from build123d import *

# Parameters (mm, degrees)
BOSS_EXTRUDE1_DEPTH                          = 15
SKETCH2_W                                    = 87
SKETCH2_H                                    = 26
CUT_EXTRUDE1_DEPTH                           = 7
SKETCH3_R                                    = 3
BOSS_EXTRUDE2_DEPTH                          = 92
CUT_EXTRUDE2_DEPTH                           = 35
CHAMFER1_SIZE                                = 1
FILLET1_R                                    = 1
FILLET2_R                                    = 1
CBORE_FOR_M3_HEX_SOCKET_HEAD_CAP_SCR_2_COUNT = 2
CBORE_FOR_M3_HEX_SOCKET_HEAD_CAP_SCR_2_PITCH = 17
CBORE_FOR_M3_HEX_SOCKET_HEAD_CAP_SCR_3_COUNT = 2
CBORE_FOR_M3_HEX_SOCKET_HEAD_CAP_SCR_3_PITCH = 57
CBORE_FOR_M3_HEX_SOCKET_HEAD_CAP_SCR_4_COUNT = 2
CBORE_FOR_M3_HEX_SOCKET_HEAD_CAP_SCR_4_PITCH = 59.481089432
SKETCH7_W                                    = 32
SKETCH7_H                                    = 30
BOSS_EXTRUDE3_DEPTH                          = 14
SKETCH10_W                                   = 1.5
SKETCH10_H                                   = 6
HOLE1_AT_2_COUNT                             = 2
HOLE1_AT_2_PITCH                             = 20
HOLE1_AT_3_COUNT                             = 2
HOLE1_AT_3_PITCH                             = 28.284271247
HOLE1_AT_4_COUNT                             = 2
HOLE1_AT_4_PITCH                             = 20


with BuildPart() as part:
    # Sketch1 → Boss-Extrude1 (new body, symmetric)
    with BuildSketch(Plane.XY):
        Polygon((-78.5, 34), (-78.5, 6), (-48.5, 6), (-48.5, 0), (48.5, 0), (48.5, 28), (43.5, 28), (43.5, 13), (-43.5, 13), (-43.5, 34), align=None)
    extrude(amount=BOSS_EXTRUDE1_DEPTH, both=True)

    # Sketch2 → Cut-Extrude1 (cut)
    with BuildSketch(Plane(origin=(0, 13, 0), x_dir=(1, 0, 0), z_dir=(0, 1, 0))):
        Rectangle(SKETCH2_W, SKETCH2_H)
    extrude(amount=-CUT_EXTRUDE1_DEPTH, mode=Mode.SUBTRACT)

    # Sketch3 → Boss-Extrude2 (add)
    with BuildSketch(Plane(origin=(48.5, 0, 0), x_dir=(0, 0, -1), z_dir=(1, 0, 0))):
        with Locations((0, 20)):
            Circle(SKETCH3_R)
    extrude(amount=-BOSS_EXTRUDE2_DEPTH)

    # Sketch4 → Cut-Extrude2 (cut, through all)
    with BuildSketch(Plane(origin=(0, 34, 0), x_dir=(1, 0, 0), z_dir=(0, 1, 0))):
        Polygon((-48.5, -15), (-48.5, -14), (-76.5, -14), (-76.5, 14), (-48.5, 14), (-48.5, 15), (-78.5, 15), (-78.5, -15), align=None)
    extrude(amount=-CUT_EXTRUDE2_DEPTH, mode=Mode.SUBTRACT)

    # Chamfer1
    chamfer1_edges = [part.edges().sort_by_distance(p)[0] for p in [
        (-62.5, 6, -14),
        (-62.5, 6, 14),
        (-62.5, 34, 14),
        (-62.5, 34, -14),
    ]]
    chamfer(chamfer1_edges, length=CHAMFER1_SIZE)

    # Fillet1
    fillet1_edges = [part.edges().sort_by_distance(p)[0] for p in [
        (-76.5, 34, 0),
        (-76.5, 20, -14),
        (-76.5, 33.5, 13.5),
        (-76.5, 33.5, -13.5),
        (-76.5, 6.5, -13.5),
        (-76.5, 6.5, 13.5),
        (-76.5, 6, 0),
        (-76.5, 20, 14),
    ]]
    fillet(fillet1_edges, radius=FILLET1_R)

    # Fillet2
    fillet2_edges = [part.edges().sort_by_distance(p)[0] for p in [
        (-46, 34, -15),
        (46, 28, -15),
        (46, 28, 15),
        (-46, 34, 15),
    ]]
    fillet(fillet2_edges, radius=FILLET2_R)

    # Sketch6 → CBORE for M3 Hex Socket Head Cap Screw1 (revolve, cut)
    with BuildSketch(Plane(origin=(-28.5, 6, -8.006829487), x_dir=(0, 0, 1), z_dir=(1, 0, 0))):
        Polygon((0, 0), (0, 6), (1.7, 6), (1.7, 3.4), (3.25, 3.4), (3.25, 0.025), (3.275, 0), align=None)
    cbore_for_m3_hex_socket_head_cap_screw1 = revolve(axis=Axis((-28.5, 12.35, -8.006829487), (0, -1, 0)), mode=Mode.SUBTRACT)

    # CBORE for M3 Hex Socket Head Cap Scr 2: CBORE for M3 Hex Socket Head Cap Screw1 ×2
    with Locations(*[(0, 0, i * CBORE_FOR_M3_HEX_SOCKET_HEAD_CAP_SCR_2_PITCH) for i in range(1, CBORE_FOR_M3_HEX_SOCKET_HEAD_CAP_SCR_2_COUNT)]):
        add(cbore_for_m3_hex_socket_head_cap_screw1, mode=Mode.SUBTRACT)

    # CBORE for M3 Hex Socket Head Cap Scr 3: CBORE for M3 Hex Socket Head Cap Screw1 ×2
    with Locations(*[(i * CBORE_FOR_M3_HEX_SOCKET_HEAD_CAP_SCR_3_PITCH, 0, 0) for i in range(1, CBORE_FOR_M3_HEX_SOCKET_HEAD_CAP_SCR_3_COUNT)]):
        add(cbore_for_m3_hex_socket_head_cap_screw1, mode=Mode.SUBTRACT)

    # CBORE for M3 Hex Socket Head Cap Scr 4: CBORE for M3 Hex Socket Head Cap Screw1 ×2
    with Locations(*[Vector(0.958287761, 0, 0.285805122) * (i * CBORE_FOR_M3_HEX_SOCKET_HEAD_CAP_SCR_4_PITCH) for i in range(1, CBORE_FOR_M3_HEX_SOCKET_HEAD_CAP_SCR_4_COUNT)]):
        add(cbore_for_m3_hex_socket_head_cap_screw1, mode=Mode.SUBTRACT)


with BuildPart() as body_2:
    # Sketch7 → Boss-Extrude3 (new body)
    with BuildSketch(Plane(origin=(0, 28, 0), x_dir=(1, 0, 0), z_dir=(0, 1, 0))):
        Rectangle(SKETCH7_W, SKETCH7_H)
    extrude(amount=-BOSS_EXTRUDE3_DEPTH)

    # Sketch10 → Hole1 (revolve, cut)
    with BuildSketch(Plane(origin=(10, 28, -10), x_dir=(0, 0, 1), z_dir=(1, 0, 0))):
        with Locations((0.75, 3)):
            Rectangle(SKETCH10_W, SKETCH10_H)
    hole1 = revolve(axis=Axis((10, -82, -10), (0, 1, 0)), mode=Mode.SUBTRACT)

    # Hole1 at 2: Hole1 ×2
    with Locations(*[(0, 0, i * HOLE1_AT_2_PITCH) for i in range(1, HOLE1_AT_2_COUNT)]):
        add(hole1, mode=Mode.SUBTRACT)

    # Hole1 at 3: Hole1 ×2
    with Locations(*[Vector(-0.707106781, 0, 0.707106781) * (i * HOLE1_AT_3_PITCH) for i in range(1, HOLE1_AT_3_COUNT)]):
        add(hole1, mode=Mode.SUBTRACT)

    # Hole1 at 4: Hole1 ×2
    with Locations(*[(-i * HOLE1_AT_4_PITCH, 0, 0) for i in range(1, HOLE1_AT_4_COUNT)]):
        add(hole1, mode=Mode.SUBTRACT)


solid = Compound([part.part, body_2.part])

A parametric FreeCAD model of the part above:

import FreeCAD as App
import Part
import Sketcher
from FreeCAD import Vector
Q = App.Units.Quantity


def edges_at(feature, points):
    """Names of the edges that pass closest to the given points."""
    edges = feature.Shape.Edges
    near = lambda p: min(range(len(edges)), key=lambda i: edges[i].distToShape(Part.Vertex(*p))[0])
    return sorted({f"Edge{near(p) + 1}" for p in points})

doc = App.newDocument("Part")
body = doc.addObject("PartDesign::Body", "Body")

# Sketch on XY plane
sketch1 = body.newObject("Sketcher::SketchObject", "Sketch")
sketch1.AttachmentSupport = (doc.getObject("XY_Plane"), [""])
sketch1.MapMode = "FlatFace"
sketch1.addGeometry(Part.LineSegment(Vector(-78, 34, 0), Vector(-78, 6, 0)), False)
sketch1.addGeometry(Part.LineSegment(Vector(-78, 6, 0), Vector(-48, 6, 0)), False)
sketch1.addGeometry(Part.LineSegment(Vector(-48, 6, 0), Vector(-48, 0, 0)), False)
sketch1.addGeometry(Part.LineSegment(Vector(-48, 0, 0), Vector(48, 0, 0)), False)
sketch1.addGeometry(Part.LineSegment(Vector(48, 0, 0), Vector(48, 28, 0)), False)
sketch1.addGeometry(Part.LineSegment(Vector(48, 28, 0), Vector(44, 28, 0)), False)
sketch1.addGeometry(Part.LineSegment(Vector(44, 28, 0), Vector(44, 13, 0)), False)
sketch1.addGeometry(Part.LineSegment(Vector(44, 13, 0), Vector(-44, 13, 0)), False)
sketch1.addGeometry(Part.LineSegment(Vector(-44, 13, 0), Vector(-44, 34, 0)), False)
sketch1.addGeometry(Part.LineSegment(Vector(-44, 34, 0), Vector(-78, 34, 0)), False)
sketch1.addConstraint(Sketcher.Constraint("Coincident", 0, 2, 1, 1))
sketch1.addConstraint(Sketcher.Constraint("Coincident", 1, 2, 2, 1))
sketch1.addConstraint(Sketcher.Constraint("Coincident", 2, 2, 3, 1))
sketch1.addConstraint(Sketcher.Constraint("Coincident", 3, 2, 4, 1))
sketch1.addConstraint(Sketcher.Constraint("Coincident", 4, 2, 5, 1))
sketch1.addConstraint(Sketcher.Constraint("Coincident", 5, 2, 6, 1))
sketch1.addConstraint(Sketcher.Constraint("Coincident", 6, 2, 7, 1))
sketch1.addConstraint(Sketcher.Constraint("Coincident", 7, 2, 8, 1))
sketch1.addConstraint(Sketcher.Constraint("Coincident", 8, 2, 9, 1))
sketch1.addConstraint(Sketcher.Constraint("Coincident", 9, 2, 0, 1))
sketch1.addConstraint(Sketcher.Constraint("Vertical", 0))
sketch1.addConstraint(Sketcher.Constraint("Horizontal", 1))
sketch1.addConstraint(Sketcher.Constraint("Vertical", 2))
sketch1.addConstraint(Sketcher.Constraint("Horizontal", 3))
sketch1.addConstraint(Sketcher.Constraint("Vertical", 4))
sketch1.addConstraint(Sketcher.Constraint("Horizontal", 5))
sketch1.addConstraint(Sketcher.Constraint("Vertical", 6))
sketch1.addConstraint(Sketcher.Constraint("Horizontal", 7))
sketch1.addConstraint(Sketcher.Constraint("Vertical", 8))
sketch1.addConstraint(Sketcher.Constraint("Horizontal", 9))
sketch1.addConstraint(Sketcher.Constraint("Symmetric", 2, 2, 3, 2, -1, 1))
sketch1.addConstraint(Sketcher.Constraint("Equal", 0, 4))
sketch1.addConstraint(Sketcher.Constraint("DistanceX", 1, 1, 1, 2, 30.0))
sketch1.addConstraint(Sketcher.Constraint("DistanceX", 3, 1, 3, 2, 97.0))
sketch1.addConstraint(Sketcher.Constraint("DistanceX", 5, 2, 5, 1, 5.0))
sketch1.addConstraint(Sketcher.Constraint("DistanceX", 7, 2, 7, 1, 87.0))
sketch1.addConstraint(Sketcher.Constraint("DistanceY", 0, 2, 0, 1, 28.0))
sketch1.addConstraint(Sketcher.Constraint("DistanceY", 2, 2, 2, 1, 6.0))
sketch1.addConstraint(Sketcher.Constraint("DistanceY", 6, 2, 6, 1, 15.0))
pad1 = body.newObject("PartDesign::Pad", "Pad")
pad1.Profile = sketch1
pad1.Length = 30
pad1.Midplane = True

# Sketch on XZ plane
sketch2 = body.newObject("Sketcher::SketchObject", "Sketch001")
sketch2.AttachmentSupport = (doc.getObject("XZ_Plane"), [""])
sketch2.MapMode = "FlatFace"
sketch2.AttachmentOffset = App.Placement(Vector(0, 0, -13), App.Rotation())
sketch2.addGeometry(Part.LineSegment(Vector(-44, -13, 0), Vector(-44, 13, 0)), False)
sketch2.addGeometry(Part.LineSegment(Vector(-44, 13, 0), Vector(44, 13, 0)), False)
sketch2.addGeometry(Part.LineSegment(Vector(44, 13, 0), Vector(44, -13, 0)), False)
sketch2.addGeometry(Part.LineSegment(Vector(44, -13, 0), Vector(-44, -13, 0)), False)
sketch2.addConstraint(Sketcher.Constraint("Coincident", 0, 2, 1, 1))
sketch2.addConstraint(Sketcher.Constraint("Coincident", 1, 2, 2, 1))
sketch2.addConstraint(Sketcher.Constraint("Coincident", 2, 2, 3, 1))
sketch2.addConstraint(Sketcher.Constraint("Coincident", 3, 2, 0, 1))
sketch2.addConstraint(Sketcher.Constraint("Vertical", 0))
sketch2.addConstraint(Sketcher.Constraint("Horizontal", 1))
sketch2.addConstraint(Sketcher.Constraint("Vertical", 2))
sketch2.addConstraint(Sketcher.Constraint("Horizontal", 3))
sketch2.addConstraint(Sketcher.Constraint("Symmetric", 0, 2, 2, 2, -1, 1))
sketch2.addConstraint(Sketcher.Constraint("DistanceX", 1, 1, 1, 2, 87.0))
sketch2.addConstraint(Sketcher.Constraint("DistanceY", 0, 1, 0, 2, 26.0))
pocket1 = body.newObject("PartDesign::Pocket", "Pocket")
pocket1.Profile = sketch2
pocket1.Length = 7
pocket1.Reversed = True

# Sketch on YZ plane
sketch3 = body.newObject("Sketcher::SketchObject", "Sketch002")
sketch3.AttachmentSupport = (doc.getObject("YZ_Plane"), [""])
sketch3.MapMode = "FlatFace"
sketch3.AttachmentOffset = App.Placement(Vector(0, 0, 48.5), App.Rotation())
sketch3.addGeometry(Part.Circle(Vector(20, 0, 0), Vector(0, 0, 1), 3), False)
sketch3.addConstraint(Sketcher.Constraint("PointOnObject", 0, 3, -1))
sketch3.addConstraint(Sketcher.Constraint("Diameter", 0, 6.0))
sketch3.addConstraint(Sketcher.Constraint("DistanceX", -1, 1, 0, 3, 20.0))
pad2 = body.newObject("PartDesign::Pad", "Pad001")
pad2.Profile = sketch3
pad2.Length = 92
pad2.Reversed = True

# Sketch on XZ plane
sketch4 = body.newObject("Sketcher::SketchObject", "Sketch003")
sketch4.AttachmentSupport = (doc.getObject("XZ_Plane"), [""])
sketch4.MapMode = "FlatFace"
sketch4.AttachmentOffset = App.Placement(Vector(0, 0, -34), App.Rotation())
sketch4.addGeometry(Part.LineSegment(Vector(-48.5, 15, 0), Vector(-48.5, 14, 0)), False)
sketch4.addGeometry(Part.LineSegment(Vector(-48.5, 14, 0), Vector(-76.5, 14, 0)), False)
sketch4.addGeometry(Part.LineSegment(Vector(-76.5, 14, 0), Vector(-76.5, -14, 0)), False)
sketch4.addGeometry(Part.LineSegment(Vector(-76.5, -14, 0), Vector(-48.5, -14, 0)), False)
sketch4.addGeometry(Part.LineSegment(Vector(-48.5, -14, 0), Vector(-48.5, -15, 0)), False)
sketch4.addGeometry(Part.LineSegment(Vector(-48.5, -15, 0), Vector(-78.5, -15, 0)), False)
sketch4.addGeometry(Part.LineSegment(Vector(-78.5, -15, 0), Vector(-78.5, 15, 0)), False)
sketch4.addGeometry(Part.LineSegment(Vector(-78.5, 15, 0), Vector(-48.5, 15, 0)), False)
sketch4.addConstraint(Sketcher.Constraint("Coincident", 0, 2, 1, 1))
sketch4.addConstraint(Sketcher.Constraint("Coincident", 1, 2, 2, 1))
sketch4.addConstraint(Sketcher.Constraint("Coincident", 2, 2, 3, 1))
sketch4.addConstraint(Sketcher.Constraint("Coincident", 3, 2, 4, 1))
sketch4.addConstraint(Sketcher.Constraint("Coincident", 4, 2, 5, 1))
sketch4.addConstraint(Sketcher.Constraint("Coincident", 5, 2, 6, 1))
sketch4.addConstraint(Sketcher.Constraint("Coincident", 6, 2, 7, 1))
sketch4.addConstraint(Sketcher.Constraint("Coincident", 7, 2, 0, 1))
sketch4.addConstraint(Sketcher.Constraint("Vertical", 0))
sketch4.addConstraint(Sketcher.Constraint("Horizontal", 1))
sketch4.addConstraint(Sketcher.Constraint("Vertical", 2))
sketch4.addConstraint(Sketcher.Constraint("Horizontal", 3))
sketch4.addConstraint(Sketcher.Constraint("Vertical", 4))
sketch4.addConstraint(Sketcher.Constraint("Horizontal", 5))
sketch4.addConstraint(Sketcher.Constraint("Vertical", 6))
sketch4.addConstraint(Sketcher.Constraint("Horizontal", 7))
sketch4.addConstraint(Sketcher.Constraint("Symmetric", 0, 2, 3, 2, -1))
sketch4.addConstraint(Sketcher.Constraint("Equal", 3, 2))
sketch4.addConstraint(Sketcher.Constraint("Equal", 0, 4))
sketch4.addConstraint(Sketcher.Constraint("Equal", 7, 6))
sketch4.addConstraint(Sketcher.Constraint("DistanceX", 1, 2, 1, 1, 28.0))
sketch4.addConstraint(Sketcher.Constraint("DistanceX", 5, 2, 5, 1, 30.0))
sketch4.addConstraint(Sketcher.Constraint("DistanceX", 0, 2, -1, 1, 48.5))
pocket2 = body.newObject("PartDesign::Pocket", "Pocket001")
pocket2.Profile = sketch4
pocket2.Type = "ThroughAll"
pocket2.Reversed = True
doc.recompute()

chamfer = body.newObject("PartDesign::Chamfer", "Chamfer")
chamfer.Base = (pocket2, edges_at(pocket2, [
    (-62.5, 6, -14),
    (-62.5, 6, 14),
    (-62.5, 34, 14),
    (-62.5, 34, -14),
]))
chamfer.Size = 1
doc.recompute()

fillet = body.newObject("PartDesign::Fillet", "Fillet")
fillet.Base = (chamfer, edges_at(chamfer, [
    (-76.5, 34, 0),
    (-76.5, 20, -14),
    (-76.5, 33.5, 13.5),
    (-76.5, 33.5, -13.5),
    (-76.5, 6.5, -13.5),
    (-76.5, 6.5, 13.5),
    (-76.5, 6, 0),
    (-76.5, 20, 14),
]))
fillet.Radius = 1
doc.recompute()

fillet2 = body.newObject("PartDesign::Fillet", "Fillet001")
fillet2.Base = (fillet, edges_at(fillet, [
    (-46, 34, -15),
    (46, 28, -15),
    (46, 28, 15),
    (-46, 34, 15),
]))
fillet2.Radius = 1

# Sketch on YZ plane
sketch5 = body.newObject("Sketcher::SketchObject", "Sketch004")
sketch5.AttachmentSupport = (doc.getObject("YZ_Plane"), [""])
sketch5.MapMode = "FlatFace"
sketch5.AttachmentOffset = App.Placement(Vector(0, 0, -28.5), App.Rotation())
sketch5.addGeometry(Part.LineSegment(Vector(0, -8.007, 0), Vector(6, -8.007, 0)), False)
sketch5.addGeometry(Part.LineSegment(Vector(6, -8.007, 0), Vector(6, -4.732, 0)), False)
sketch5.addGeometry(Part.LineSegment(Vector(6, -4.732, 0), Vector(5.975, -4.757, 0)), False)
sketch5.addGeometry(Part.LineSegment(Vector(5.975, -4.757, 0), Vector(2.6, -4.757, 0)), False)
sketch5.addGeometry(Part.LineSegment(Vector(2.6, -4.757, 0), Vector(2.6, -6.307, 0)), False)
sketch5.addGeometry(Part.LineSegment(Vector(2.6, -6.307, 0), Vector(0, -6.307, 0)), False)
sketch5.addGeometry(Part.LineSegment(Vector(0, -6.307, 0), Vector(0, -8.007, 0)), False)
sketch5.addGeometry(Part.LineSegment(Vector(6, -8.007, 0), Vector(0, -8.007, 0)), True)  # axis
sketch5.addConstraint(Sketcher.Constraint("Coincident", 0, 2, 1, 1))
sketch5.addConstraint(Sketcher.Constraint("Coincident", 1, 2, 2, 1))
sketch5.addConstraint(Sketcher.Constraint("Coincident", 2, 2, 3, 1))
sketch5.addConstraint(Sketcher.Constraint("Coincident", 3, 2, 4, 1))
sketch5.addConstraint(Sketcher.Constraint("Coincident", 4, 2, 5, 1))
sketch5.addConstraint(Sketcher.Constraint("Coincident", 5, 2, 6, 1))
sketch5.addConstraint(Sketcher.Constraint("Coincident", 6, 2, 0, 1))
sketch5.addConstraint(Sketcher.Constraint("Horizontal", 0))
sketch5.addConstraint(Sketcher.Constraint("Vertical", 1))
sketch5.addConstraint(Sketcher.Constraint("Horizontal", 3))
sketch5.addConstraint(Sketcher.Constraint("Vertical", 4))
sketch5.addConstraint(Sketcher.Constraint("Horizontal", 5))
sketch5.addConstraint(Sketcher.Constraint("Vertical", 6))
sketch5.addConstraint(Sketcher.Constraint("Horizontal", 7))
sketch5.addConstraint(Sketcher.Constraint("Coincident", 7, 1, 0, 2))
sketch5.addConstraint(Sketcher.Constraint("PointOnObject", 5, 2, -2))
sketch5.addConstraint(Sketcher.Constraint("PointOnObject", 7, 2, -2))
sketch5.addConstraint(Sketcher.Constraint("DistanceX", 0, 1, 0, 2, 6.0))
sketch5.addConstraint(Sketcher.Constraint("Angle", 2, Q("-135 deg")))
sketch5.addConstraint(Sketcher.Constraint("DistanceX", 5, 2, 5, 1, 2.6))
sketch5.addConstraint(Sketcher.Constraint("DistanceY", 6, 2, 6, 1, 1.7))
sketch5.addConstraint(Sketcher.Constraint("DistanceY", 4, 2, 4, 1, 1.55))
sketch5.addConstraint(Sketcher.Constraint("DistanceX", 3, 2, 3, 1, 3.375))
sketch5.addConstraint(Sketcher.Constraint("DistanceY", 0, 2, -1, 1, 8.006829))
groove = body.newObject("PartDesign::Groove", "Groove")
groove.Profile = sketch5
groove.ReferenceAxis = (sketch5, ["Axis0"])
groove.Angle = 360
doc.recompute()

linearpattern = body.newObject("PartDesign::LinearPattern", "LinearPattern")
linearpattern.Originals = [groove]
linearpattern.Direction = (doc.getObject("Z_Axis"), [""])
linearpattern.Mode = "offset"
linearpattern.Offset = 17
linearpattern.Occurrences = 2
body.Tip = linearpattern
doc.recompute()

linearpattern2 = body.newObject("PartDesign::LinearPattern", "LinearPattern001")
linearpattern2.Originals = [groove]
linearpattern2.Direction = (doc.getObject("X_Axis"), [""])
linearpattern2.Mode = "offset"
linearpattern2.Offset = 57
linearpattern2.Occurrences = 2
body.Tip = linearpattern2
doc.recompute()

datumline = body.newObject("PartDesign::Line", "DatumLine")
datumline.Placement = App.Placement(Vector(0, 0, 0), App.Rotation(Vector(0, 0, 1), Vector(0.958287761, 0, 0.285805122)))
linearpattern3 = body.newObject("PartDesign::LinearPattern", "LinearPattern002")
linearpattern3.Originals = [groove]
linearpattern3.Direction = (datumline, [""])
linearpattern3.Mode = "offset"
linearpattern3.Offset = 59.481089
linearpattern3.Occurrences = 2
body.Tip = linearpattern3
body2 = doc.addObject("PartDesign::Body", "Body001")

# Sketch on XZ plane
sketch6 = body2.newObject("Sketcher::SketchObject", "Sketch005")
sketch6.AttachmentSupport = (doc.getObject("XZ_Plane001"), [""])
sketch6.MapMode = "FlatFace"
sketch6.AttachmentOffset = App.Placement(Vector(0, 0, -28), App.Rotation())
sketch6.addGeometry(Part.LineSegment(Vector(-16, -15, 0), Vector(-16, 15, 0)), False)
sketch6.addGeometry(Part.LineSegment(Vector(-16, 15, 0), Vector(16, 15, 0)), False)
sketch6.addGeometry(Part.LineSegment(Vector(16, 15, 0), Vector(16, -15, 0)), False)
sketch6.addGeometry(Part.LineSegment(Vector(16, -15, 0), Vector(-16, -15, 0)), False)
sketch6.addConstraint(Sketcher.Constraint("Coincident", 0, 2, 1, 1))
sketch6.addConstraint(Sketcher.Constraint("Coincident", 1, 2, 2, 1))
sketch6.addConstraint(Sketcher.Constraint("Coincident", 2, 2, 3, 1))
sketch6.addConstraint(Sketcher.Constraint("Coincident", 3, 2, 0, 1))
sketch6.addConstraint(Sketcher.Constraint("Vertical", 0))
sketch6.addConstraint(Sketcher.Constraint("Horizontal", 1))
sketch6.addConstraint(Sketcher.Constraint("Vertical", 2))
sketch6.addConstraint(Sketcher.Constraint("Horizontal", 3))
sketch6.addConstraint(Sketcher.Constraint("Symmetric", 0, 2, 2, 2, -1, 1))
sketch6.addConstraint(Sketcher.Constraint("DistanceX", 1, 1, 1, 2, 32.0))
sketch6.addConstraint(Sketcher.Constraint("DistanceY", 0, 1, 0, 2, 30.0))
pad3 = body2.newObject("PartDesign::Pad", "Pad002")
pad3.Profile = sketch6
pad3.Length = 14

# Sketch on YZ plane
sketch7 = body2.newObject("Sketcher::SketchObject", "Sketch006")
sketch7.AttachmentSupport = (doc.getObject("YZ_Plane001"), [""])
sketch7.MapMode = "FlatFace"
sketch7.AttachmentOffset = App.Placement(Vector(0, 0, 10), App.Rotation())
sketch7.addGeometry(Part.LineSegment(Vector(22, -10, 0), Vector(28, -10, 0)), False)
sketch7.addGeometry(Part.LineSegment(Vector(28, -10, 0), Vector(28, -8.5, 0)), False)
sketch7.addGeometry(Part.LineSegment(Vector(28, -8.5, 0), Vector(22, -8.5, 0)), False)
sketch7.addGeometry(Part.LineSegment(Vector(22, -8.5, 0), Vector(22, -10, 0)), False)
sketch7.addGeometry(Part.LineSegment(Vector(22, -10, 0), Vector(28, -10, 0)), True)  # axis
sketch7.addConstraint(Sketcher.Constraint("Coincident", 0, 2, 1, 1))
sketch7.addConstraint(Sketcher.Constraint("Coincident", 1, 2, 2, 1))
sketch7.addConstraint(Sketcher.Constraint("Coincident", 2, 2, 3, 1))
sketch7.addConstraint(Sketcher.Constraint("Coincident", 3, 2, 0, 1))
sketch7.addConstraint(Sketcher.Constraint("Horizontal", 0))
sketch7.addConstraint(Sketcher.Constraint("Vertical", 1))
sketch7.addConstraint(Sketcher.Constraint("Horizontal", 2))
sketch7.addConstraint(Sketcher.Constraint("Vertical", 3))
sketch7.addConstraint(Sketcher.Constraint("Horizontal", 4))
sketch7.addConstraint(Sketcher.Constraint("Coincident", 4, 1, 3, 2))
sketch7.addConstraint(Sketcher.Constraint("Vertical", 1, 2, 4, 2))
sketch7.addConstraint(Sketcher.Constraint("DistanceX", 0, 1, 0, 2, 6.0))
sketch7.addConstraint(Sketcher.Constraint("DistanceY", 1, 1, 1, 2, 1.5))
sketch7.addConstraint(Sketcher.Constraint("DistanceX", -1, 1, 0, 2, 28.0))
sketch7.addConstraint(Sketcher.Constraint("DistanceY", 0, 2, -1, 1, 10.0))
groove2 = body2.newObject("PartDesign::Groove", "Groove001")
groove2.Profile = sketch7
groove2.ReferenceAxis = (sketch7, ["Axis0"])
groove2.Angle = 360
doc.recompute()

linearpattern4 = body2.newObject("PartDesign::LinearPattern", "LinearPattern003")
linearpattern4.Originals = [groove2]
linearpattern4.Direction = (doc.getObject("Z_Axis001"), [""])
linearpattern4.Mode = "offset"
linearpattern4.Offset = 20
linearpattern4.Occurrences = 2
body2.Tip = linearpattern4
doc.recompute()

datumline2 = body2.newObject("PartDesign::Line", "DatumLine001")
datumline2.Placement = App.Placement(Vector(0, 0, 0), App.Rotation(Vector(0, 0, 1), Vector(-0.707106781, 0, 0.707106781)))
linearpattern5 = body2.newObject("PartDesign::LinearPattern", "LinearPattern004")
linearpattern5.Originals = [groove2]
linearpattern5.Direction = (datumline2, [""])
linearpattern5.Mode = "offset"
linearpattern5.Offset = 28.284271
linearpattern5.Occurrences = 2
body2.Tip = linearpattern5
doc.recompute()

linearpattern6 = body2.newObject("PartDesign::LinearPattern", "LinearPattern005")
linearpattern6.Originals = [groove2]
linearpattern6.Direction = (doc.getObject("X_Axis001"), [""])
linearpattern6.Mode = "offset"
linearpattern6.Offset = 20
linearpattern6.Occurrences = 2
linearpattern6.Reversed = True
body2.Tip = linearpattern6

doc.recompute()
